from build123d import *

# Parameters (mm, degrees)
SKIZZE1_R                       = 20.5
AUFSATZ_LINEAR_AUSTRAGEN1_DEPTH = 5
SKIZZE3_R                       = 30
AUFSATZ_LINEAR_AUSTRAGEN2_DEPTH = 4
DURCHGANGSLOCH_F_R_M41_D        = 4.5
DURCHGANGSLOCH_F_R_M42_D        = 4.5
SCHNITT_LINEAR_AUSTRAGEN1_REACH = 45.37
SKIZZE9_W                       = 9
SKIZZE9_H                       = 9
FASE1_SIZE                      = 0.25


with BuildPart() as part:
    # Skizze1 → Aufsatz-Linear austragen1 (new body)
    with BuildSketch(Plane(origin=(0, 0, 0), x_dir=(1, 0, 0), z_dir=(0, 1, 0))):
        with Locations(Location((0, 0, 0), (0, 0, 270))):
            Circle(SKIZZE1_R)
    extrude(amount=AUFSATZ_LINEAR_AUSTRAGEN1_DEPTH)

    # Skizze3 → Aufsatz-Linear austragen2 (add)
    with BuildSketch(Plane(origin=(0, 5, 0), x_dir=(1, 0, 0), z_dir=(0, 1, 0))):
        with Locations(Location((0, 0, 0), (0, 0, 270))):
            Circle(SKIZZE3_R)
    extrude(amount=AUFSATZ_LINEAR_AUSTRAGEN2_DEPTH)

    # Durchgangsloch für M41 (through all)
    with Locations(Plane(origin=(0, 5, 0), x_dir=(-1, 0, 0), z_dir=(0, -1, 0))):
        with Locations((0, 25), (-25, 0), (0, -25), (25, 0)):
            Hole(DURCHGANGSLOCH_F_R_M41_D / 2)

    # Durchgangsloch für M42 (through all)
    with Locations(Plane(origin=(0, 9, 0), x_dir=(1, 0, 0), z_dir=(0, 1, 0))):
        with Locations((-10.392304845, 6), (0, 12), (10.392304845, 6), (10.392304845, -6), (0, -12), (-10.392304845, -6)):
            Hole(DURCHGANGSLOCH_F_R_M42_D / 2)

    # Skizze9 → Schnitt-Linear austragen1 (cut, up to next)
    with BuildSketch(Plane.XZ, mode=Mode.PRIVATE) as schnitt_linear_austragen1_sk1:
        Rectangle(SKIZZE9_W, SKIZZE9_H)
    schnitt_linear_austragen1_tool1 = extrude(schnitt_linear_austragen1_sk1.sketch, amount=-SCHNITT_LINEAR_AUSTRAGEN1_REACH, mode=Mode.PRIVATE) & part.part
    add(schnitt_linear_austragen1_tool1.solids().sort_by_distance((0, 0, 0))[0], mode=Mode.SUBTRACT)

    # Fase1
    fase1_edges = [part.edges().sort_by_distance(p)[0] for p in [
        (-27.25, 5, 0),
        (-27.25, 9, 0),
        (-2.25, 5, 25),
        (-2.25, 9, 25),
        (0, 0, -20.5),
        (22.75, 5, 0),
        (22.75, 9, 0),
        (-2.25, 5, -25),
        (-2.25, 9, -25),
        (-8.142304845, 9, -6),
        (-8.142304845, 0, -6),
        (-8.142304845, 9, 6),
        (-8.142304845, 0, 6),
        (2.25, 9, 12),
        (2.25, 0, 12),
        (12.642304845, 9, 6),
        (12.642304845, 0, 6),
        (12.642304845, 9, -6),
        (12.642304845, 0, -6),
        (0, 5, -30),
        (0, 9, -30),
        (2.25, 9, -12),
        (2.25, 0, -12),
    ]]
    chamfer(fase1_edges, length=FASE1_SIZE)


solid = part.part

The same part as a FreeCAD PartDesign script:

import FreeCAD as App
import Part
import Sketcher
from FreeCAD import Vector


def edges_at(feature, points):
    """Names of the edges that pass closest to the given points."""
    edges = feature.Shape.Edges
    near = lambda p: min(range(len(edges)), key=lambda i: edges[i].distToShape(Part.Vertex(*p))[0])
    return sorted({f"Edge{near(p) + 1}" for p in points})

doc = App.newDocument("Part")
body = doc.addObject("PartDesign::Body", "Body")

# Sketch on XZ plane
sketch1 = doc.addObject("Sketcher::SketchObject", "Sketch")
body.addObject(sketch1)
sketch1.AttachmentSupport = (doc.XZ_Plane, [""])
sketch1.MapMode = "FlatFace"
sketch1.addGeometry(Part.Circle(Vector(0, 0, 0), Vector(0, 0, 1), 20), False)
sketch1.addConstraint([
    Sketcher.Constraint("Coincident", 0, 3, -1, 1),
    Sketcher.Constraint("Diameter", 0, 41.0),
])
pad1 = doc.addObject("PartDesign::Pad", "Pad")
body.addObject(pad1)
pad1.Profile = sketch1
pad1.Length = 5
pad1.Reversed = True

# Sketch on XZ plane
sketch2 = doc.addObject("Sketcher::SketchObject", "Sketch001")
body.addObject(sketch2)
sketch2.AttachmentSupport = (doc.XZ_Plane, [""])
sketch2.MapMode = "FlatFace"
sketch2.AttachmentOffset = App.Placement(Vector(0, 0, -5), App.Rotation())
sketch2.addGeometry(Part.Circle(Vector(0, 0, 0), Vector(0, 0, 1), 30), False)
sketch2.addConstraint([
    Sketcher.Constraint("Coincident", 0, 3, -1, 1),
    Sketcher.Constraint("Diameter", 0, 60.0),
])
pad2 = doc.addObject("PartDesign::Pad", "Pad001")
body.addObject(pad2)
pad2.Profile = sketch2
pad2.Length = 4
pad2.Reversed = True

# Sketch on XZ plane
sketch3 = doc.addObject("Sketcher::SketchObject", "Sketch002")
body.addObject(sketch3)
sketch3.AttachmentSupport = (doc.XZ_Plane, [""])
sketch3.MapMode = "FlatFace"
sketch3.AttachmentOffset = App.Placement(Vector(0, 0, -5), App.Rotation())
sketch3.addGeometry([
    Part.Circle(Vector(0, -25, 0), Vector(0, 0, 1), 2.2),
    Part.Circle(Vector(25, 0, 0), Vector(0, 0, 1), 2.2),
    Part.Circle(Vector(0, 25, 0), Vector(0, 0, 1), 2.2),
    Part.Circle(Vector(-25, 0, 0), Vector(0, 0, 1), 2.2),
], False)
sketch3.addConstraint([
    Sketcher.Constraint("Equal", 0, 1),
    Sketcher.Constraint("Equal", 1, 2),
    Sketcher.Constraint("Equal", 2, 3),
    Sketcher.Constraint("Symmetric", 0, 3, 2, 3, -1, 1),
    Sketcher.Constraint("Symmetric", 1, 3, 3, 3, -1, 1),
    Sketcher.Constraint("PointOnObject", 0, 3, -2),
    Sketcher.Constraint("PointOnObject", 1, 3, -1),
    Sketcher.Constraint("Diameter", 0, 4.5),
    Sketcher.Constraint("DistanceY", 0, 3, -1, 1, 25.0),
    Sketcher.Constraint("DistanceX", -1, 1, 1, 3, 25.0),
])
doc.recompute()
hole = doc.addObject("PartDesign::Hole", "Hole")
body.addObject(hole)
hole.Profile = sketch3
hole.ThreadType = "None"
hole.Diameter = 4.5
hole.DepthType = "ThroughAll"

# Sketch on XZ plane
sketch4 = doc.addObject("Sketcher::SketchObject", "Sketch003")
body.addObject(sketch4)
sketch4.AttachmentSupport = (doc.XZ_Plane, [""])
sketch4.MapMode = "FlatFace"
sketch4.AttachmentOffset = App.Placement(Vector(0, 0, -9), App.Rotation())
sketch4.addGeometry([
    Part.Circle(Vector(-10.4, -6, 0), Vector(0, 0, 1), 2.2),  # 0
    Part.Circle(Vector(0, -12, 0), Vector(0, 0, 1), 2.2),  # 1
    Part.Circle(Vector(10.4, -6, 0), Vector(0, 0, 1), 2.2),  # 2
    Part.Circle(Vector(10.4, 6, 0), Vector(0, 0, 1), 2.2),  # 3
    Part.Circle(Vector(0, 12, 0), Vector(0, 0, 1), 2.2),  # 4
    Part.Circle(Vector(-10.4, 6, 0), Vector(0, 0, 1), 2.2),  # 5
], False)
sketch4.addConstraint([
    Sketcher.Constraint("Equal", 0, 1),
    Sketcher.Constraint("Equal", 1, 2),
    Sketcher.Constraint("Equal", 2, 3),
    Sketcher.Constraint("Equal", 3, 4),
    Sketcher.Constraint("Equal", 4, 5),
    Sketcher.Constraint("Symmetric", 0, 3, 3, 3, -1, 1),
    Sketcher.Constraint("Symmetric", 1, 3, 4, 3, -1, 1),
    Sketcher.Constraint("Symmetric", 2, 3, 5, 3, -1, 1),
    Sketcher.Constraint("Symmetric", 0, 3, 2, 3, -2),
    Sketcher.Constraint("PointOnObject", 1, 3, -2),
    Sketcher.Constraint("Diameter", 0, 4.5),
    Sketcher.Constraint("DistanceY", 0, 3, -1, 1, 6.0),
    Sketcher.Constraint("DistanceY", 1, 3, -1, 1, 12.0),
    Sketcher.Constraint("DistanceX", 0, 3, 2, 3, 20.78461),
])
doc.recompute()
hole2 = doc.addObject("PartDesign::Hole", "Hole001")
body.addObject(hole2)
hole2.Profile = sketch4
hole2.ThreadType = "None"
hole2.Diameter = 4.5
hole2.DepthType = "ThroughAll"
hole2.Reversed = True

# Sketch on XZ plane
sketch5 = doc.addObject("Sketcher::SketchObject", "Sketch004")
body.addObject(sketch5)
sketch5.AttachmentSupport = (doc.XZ_Plane, [""])
sketch5.MapMode = "FlatFace"
sketch5.addGeometry([
    Part.LineSegment(Vector(-4, 4, 0), Vector(-4, -4, 0)),
    Part.LineSegment(Vector(-4, -4, 0), Vector(4, -4, 0)),
    Part.LineSegment(Vector(4, -4, 0), Vector(4, 4, 0)),
    Part.LineSegment(Vector(4, 4, 0), Vector(-4, 4, 0)),
], False)
sketch5.addConstraint([
    Sketcher.Constraint("Coincident", 0, 2, 1, 1),
    Sketcher.Constraint("Coincident", 1, 2, 2, 1),
    Sketcher.Constraint("Coincident", 2, 2, 3, 1),
    Sketcher.Constraint("Coincident", 3, 2, 0, 1),
    Sketcher.Constraint("Vertical", 0),
    Sketcher.Constraint("Horizontal", 1),
    Sketcher.Constraint("Vertical", 2),
    Sketcher.Constraint("Horizontal", 3),
    Sketcher.Constraint("Symmetric", 0, 2, 2, 2, -1, 1),
    Sketcher.Constraint("Equal", 3, 0),
    Sketcher.Constraint("DistanceX", 1, 1, 1, 2, 9.0),
])
pocket1 = doc.addObject("PartDesign::Pocket", "Pocket")
body.addObject(pocket1)
pocket1.Profile = sketch5
pocket1.Type = "UpToFirst"
doc.recompute()

chamfer = doc.addObject("PartDesign::Chamfer", "Chamfer")
body.addObject(chamfer)
chamfer.Base = (pocket1, edges_at(pocket1, [
    (-27.25, 5, 0),
    (-27.25, 9, 0),
    (-2.25, 5, 25),
    (-2.25, 9, 25),
    (0, 0, -20.5),
    (22.75, 5, 0),
    (22.75, 9, 0),
    (-2.25, 5, -25),
    (-2.25, 9, -25),
    (-8.142, 9, -6),
    (-8.142, 0, -6),
    (-8.142, 9, 6),
    (-8.142, 0, 6),
    (2.25, 9, 12),
    (2.25, 0, 12),
    (12.642, 9, 6),
    (12.642, 0, 6),
    (12.642, 9, -6),
    (12.642, 0, -6),
    (0, 5, -30),
    (0, 9, -30),
    (2.25, 9, -12),
    (2.25, 0, -12),
]))
chamfer.Size = 0.25

doc.recompute()
